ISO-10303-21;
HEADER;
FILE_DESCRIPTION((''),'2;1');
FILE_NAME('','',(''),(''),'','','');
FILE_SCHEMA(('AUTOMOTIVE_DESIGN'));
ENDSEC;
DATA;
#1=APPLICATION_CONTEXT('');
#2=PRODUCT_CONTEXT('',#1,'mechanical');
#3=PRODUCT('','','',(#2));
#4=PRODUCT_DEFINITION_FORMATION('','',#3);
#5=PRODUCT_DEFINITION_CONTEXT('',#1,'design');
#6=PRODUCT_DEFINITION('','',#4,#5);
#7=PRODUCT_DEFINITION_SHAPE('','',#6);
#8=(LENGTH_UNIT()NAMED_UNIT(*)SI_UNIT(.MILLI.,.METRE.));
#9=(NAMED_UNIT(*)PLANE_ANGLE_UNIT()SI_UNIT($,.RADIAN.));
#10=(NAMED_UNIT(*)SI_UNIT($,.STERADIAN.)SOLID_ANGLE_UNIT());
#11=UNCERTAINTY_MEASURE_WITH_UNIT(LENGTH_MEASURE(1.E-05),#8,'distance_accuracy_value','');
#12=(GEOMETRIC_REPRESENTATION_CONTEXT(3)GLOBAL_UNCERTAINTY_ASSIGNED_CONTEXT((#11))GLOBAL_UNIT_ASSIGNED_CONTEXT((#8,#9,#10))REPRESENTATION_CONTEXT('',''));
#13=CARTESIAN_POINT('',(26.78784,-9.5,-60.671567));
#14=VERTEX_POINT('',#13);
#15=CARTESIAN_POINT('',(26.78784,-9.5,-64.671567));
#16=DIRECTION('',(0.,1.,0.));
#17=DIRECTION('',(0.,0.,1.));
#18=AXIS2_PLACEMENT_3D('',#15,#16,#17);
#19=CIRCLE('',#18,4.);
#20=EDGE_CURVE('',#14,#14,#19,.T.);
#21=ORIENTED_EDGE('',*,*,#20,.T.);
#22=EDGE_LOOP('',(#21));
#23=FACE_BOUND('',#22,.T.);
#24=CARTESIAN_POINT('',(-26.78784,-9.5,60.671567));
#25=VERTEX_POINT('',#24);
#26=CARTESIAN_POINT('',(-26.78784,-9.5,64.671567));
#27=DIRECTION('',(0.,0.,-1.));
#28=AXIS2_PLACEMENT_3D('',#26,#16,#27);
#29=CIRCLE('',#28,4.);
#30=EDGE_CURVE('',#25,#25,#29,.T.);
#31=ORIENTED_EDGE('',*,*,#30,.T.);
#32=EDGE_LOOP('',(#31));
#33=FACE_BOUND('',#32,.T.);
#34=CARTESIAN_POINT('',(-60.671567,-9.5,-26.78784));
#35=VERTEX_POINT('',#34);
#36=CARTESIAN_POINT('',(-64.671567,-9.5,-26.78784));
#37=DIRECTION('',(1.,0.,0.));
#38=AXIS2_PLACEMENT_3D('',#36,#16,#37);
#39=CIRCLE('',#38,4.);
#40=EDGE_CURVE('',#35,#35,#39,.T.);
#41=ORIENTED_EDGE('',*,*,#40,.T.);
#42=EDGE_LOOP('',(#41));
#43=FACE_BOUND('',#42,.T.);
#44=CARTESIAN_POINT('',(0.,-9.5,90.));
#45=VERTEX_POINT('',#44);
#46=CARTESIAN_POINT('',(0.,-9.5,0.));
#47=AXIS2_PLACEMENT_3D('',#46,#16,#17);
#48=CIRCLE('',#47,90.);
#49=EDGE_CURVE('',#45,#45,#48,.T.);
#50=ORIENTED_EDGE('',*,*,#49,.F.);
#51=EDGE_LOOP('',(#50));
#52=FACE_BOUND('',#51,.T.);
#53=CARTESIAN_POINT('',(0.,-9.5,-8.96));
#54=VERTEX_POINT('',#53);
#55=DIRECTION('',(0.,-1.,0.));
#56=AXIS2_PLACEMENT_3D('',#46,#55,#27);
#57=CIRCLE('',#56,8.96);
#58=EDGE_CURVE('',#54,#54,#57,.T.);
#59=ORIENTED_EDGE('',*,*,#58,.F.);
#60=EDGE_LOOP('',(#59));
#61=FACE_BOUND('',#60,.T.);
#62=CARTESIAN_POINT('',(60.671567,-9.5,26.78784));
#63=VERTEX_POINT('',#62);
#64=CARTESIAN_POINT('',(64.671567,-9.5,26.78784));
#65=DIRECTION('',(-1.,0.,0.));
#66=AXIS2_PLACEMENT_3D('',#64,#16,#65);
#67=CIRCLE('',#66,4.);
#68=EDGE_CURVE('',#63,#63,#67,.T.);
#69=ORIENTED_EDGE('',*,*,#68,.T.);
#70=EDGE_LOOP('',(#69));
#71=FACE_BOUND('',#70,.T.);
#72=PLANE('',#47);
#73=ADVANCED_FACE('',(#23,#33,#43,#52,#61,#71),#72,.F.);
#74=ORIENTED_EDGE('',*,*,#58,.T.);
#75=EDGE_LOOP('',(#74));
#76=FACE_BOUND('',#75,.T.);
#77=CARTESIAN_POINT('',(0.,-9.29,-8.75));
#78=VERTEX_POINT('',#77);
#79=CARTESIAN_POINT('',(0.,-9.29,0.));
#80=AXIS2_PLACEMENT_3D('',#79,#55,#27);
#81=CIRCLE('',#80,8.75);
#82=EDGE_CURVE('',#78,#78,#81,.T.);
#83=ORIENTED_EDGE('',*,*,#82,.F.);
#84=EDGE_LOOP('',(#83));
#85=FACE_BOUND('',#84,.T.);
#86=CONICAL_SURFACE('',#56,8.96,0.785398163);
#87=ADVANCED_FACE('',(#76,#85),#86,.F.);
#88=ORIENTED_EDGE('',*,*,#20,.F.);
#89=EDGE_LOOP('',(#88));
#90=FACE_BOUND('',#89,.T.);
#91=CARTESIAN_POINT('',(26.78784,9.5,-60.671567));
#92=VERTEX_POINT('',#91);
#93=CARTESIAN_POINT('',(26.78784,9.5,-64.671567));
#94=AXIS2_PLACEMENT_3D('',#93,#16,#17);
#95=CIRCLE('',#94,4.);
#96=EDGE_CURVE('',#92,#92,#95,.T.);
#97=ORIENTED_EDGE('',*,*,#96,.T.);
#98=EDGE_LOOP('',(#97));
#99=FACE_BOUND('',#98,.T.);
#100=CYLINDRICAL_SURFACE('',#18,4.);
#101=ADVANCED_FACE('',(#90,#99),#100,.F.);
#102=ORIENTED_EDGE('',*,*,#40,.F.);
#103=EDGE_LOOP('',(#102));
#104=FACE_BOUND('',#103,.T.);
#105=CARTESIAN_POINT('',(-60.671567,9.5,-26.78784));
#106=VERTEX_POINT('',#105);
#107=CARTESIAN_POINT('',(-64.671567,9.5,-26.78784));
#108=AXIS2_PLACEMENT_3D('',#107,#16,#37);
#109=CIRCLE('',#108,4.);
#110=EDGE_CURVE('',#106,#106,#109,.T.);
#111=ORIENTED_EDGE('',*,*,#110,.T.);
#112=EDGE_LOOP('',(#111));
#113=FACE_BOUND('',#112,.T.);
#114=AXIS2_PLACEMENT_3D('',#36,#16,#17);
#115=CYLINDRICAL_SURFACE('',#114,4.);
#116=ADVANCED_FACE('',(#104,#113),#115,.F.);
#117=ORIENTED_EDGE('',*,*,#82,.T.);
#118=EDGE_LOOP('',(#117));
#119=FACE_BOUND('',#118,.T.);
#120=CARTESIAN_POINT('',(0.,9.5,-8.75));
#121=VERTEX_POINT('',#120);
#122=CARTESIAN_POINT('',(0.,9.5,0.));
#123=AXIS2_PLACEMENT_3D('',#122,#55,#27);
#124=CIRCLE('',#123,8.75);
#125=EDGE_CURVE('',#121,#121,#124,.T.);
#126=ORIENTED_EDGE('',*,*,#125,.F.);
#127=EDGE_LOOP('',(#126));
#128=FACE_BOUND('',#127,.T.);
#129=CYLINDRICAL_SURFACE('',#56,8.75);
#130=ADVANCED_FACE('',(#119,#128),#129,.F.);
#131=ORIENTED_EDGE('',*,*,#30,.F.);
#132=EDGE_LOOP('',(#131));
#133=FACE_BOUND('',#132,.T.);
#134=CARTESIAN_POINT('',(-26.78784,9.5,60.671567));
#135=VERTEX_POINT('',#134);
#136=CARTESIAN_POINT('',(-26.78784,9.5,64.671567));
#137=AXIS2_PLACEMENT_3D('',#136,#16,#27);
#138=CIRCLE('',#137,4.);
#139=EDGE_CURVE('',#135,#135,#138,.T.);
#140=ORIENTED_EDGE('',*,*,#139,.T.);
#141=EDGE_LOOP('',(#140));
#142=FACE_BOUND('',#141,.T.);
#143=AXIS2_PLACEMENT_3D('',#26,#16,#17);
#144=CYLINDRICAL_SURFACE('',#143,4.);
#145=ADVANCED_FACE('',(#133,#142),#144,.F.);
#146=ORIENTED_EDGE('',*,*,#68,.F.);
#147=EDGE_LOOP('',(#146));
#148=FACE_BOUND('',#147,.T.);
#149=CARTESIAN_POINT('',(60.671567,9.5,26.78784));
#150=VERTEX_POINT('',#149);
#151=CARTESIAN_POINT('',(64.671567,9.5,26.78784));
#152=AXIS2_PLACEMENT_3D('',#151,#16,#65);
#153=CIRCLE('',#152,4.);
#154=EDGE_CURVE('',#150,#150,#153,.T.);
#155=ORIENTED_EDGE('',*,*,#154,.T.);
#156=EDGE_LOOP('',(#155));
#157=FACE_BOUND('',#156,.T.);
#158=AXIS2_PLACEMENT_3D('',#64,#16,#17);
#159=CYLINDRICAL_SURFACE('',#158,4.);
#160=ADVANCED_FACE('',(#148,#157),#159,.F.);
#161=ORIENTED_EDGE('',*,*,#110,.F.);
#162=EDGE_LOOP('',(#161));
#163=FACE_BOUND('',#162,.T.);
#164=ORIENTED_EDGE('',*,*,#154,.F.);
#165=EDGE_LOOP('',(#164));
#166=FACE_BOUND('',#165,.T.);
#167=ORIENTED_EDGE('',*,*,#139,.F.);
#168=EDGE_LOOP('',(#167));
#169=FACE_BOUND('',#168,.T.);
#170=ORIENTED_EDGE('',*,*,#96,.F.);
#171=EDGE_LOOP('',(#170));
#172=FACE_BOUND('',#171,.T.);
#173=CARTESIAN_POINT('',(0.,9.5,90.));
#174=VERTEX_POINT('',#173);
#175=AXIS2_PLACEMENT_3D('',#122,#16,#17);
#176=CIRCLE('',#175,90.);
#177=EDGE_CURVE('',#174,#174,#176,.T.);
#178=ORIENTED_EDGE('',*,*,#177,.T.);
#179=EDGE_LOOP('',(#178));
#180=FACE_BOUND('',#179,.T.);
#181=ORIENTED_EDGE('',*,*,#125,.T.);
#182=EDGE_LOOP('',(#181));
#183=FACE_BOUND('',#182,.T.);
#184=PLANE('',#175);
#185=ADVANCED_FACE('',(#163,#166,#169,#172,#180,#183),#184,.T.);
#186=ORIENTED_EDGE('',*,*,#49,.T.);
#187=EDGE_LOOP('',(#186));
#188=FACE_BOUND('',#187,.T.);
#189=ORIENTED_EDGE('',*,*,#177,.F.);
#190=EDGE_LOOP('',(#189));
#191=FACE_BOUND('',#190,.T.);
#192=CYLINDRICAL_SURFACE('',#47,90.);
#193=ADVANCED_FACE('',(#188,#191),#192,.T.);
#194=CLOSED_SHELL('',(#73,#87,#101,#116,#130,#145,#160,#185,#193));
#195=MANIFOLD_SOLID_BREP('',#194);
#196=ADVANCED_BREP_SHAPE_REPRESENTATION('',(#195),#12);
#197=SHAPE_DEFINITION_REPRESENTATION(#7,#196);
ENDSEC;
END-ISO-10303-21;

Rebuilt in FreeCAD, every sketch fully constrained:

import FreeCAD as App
import Part
import Sketcher

doc = App.newDocument("Part")
body = doc.addObject("PartDesign::Body", "Body")

# Sketch on XZ plane
sketch1 = doc.addObject("Sketcher::SketchObject", "Sketch")
body.addObject(sketch1)
sketch1.AttachmentSupport = (doc.XZ_Plane, [""])
sketch1.MapMode = "FlatFace"
sketch1.addGeometry(Part.Circle(App.Vector(0, 0, 0), App.Vector(0, 0, 1), 90), False)
sketch1.addConstraint(Sketcher.Constraint("Coincident", 0, 3, -1, 1))
sketch1.addConstraint(Sketcher.Constraint("Diameter", 0, 180.0))
pad1 = doc.addObject("PartDesign::Pad", "Pad")
body.addObject(pad1)
pad1.Profile = sketch1
pad1.Type = "TwoLengths"
pad1.Length = 9.5
pad1.Length2 = 9.5
pad1.Reversed = True

# Sketch on XZ plane
sketch2 = doc.addObject("Sketcher::SketchObject", "Sketch001")
body.addObject(sketch2)
sketch2.AttachmentSupport = (doc.XZ_Plane, [""])
sketch2.MapMode = "FlatFace"
sketch2.AttachmentOffset = App.Placement(App.Vector(0, 0, 9.5), App.Rotation())
sketch2.addGeometry(Part.Circle(App.Vector(0, 0, 0), App.Vector(0, 0, 1), 8.75), False)
sketch2.addConstraint(Sketcher.Constraint("Coincident", 0, 3, -1, 1))
sketch2.addConstraint(Sketcher.Constraint("Diameter", 0, 17.5))
doc.recompute()
hole = doc.addObject("PartDesign::Hole", "Hole")
body.addObject(hole)
hole.Profile = sketch2
hole.ThreadType = "None"
hole.Diameter = 17.5
hole.DepthType = "ThroughAll"
hole.HoleCutType = "Countersink"
hole.HoleCutDiameter = 17.92
hole.HoleCutCountersinkAngle = 90

# Sketch on XZ plane
sketch3 = doc.addObject("Sketcher::SketchObject", "Sketch002")
body.addObject(sketch3)
sketch3.AttachmentSupport = (doc.XZ_Plane, [""])
sketch3.MapMode = "FlatFace"
sketch3.addGeometry(Part.Circle(App.Vector(26.78784, -64.671567, 0), App.Vector(0, 0, 1), 4), False)
sketch3.addConstraint(Sketcher.Constraint("Diameter", 0, 8.0))
sketch3.addConstraint(Sketcher.Constraint("DistanceX", -1, 1, 0, 3, 26.78784))
sketch3.addConstraint(Sketcher.Constraint("DistanceY", 0, 3, -1, 1, 64.671567))
pocket1 = doc.addObject("PartDesign::Pocket", "Pocket")
body.addObject(pocket1)
pocket1.Profile = sketch3
pocket1.Length = 257.266527
pocket1.Midplane = True
doc.recompute()

polarpattern = doc.addObject("PartDesign::PolarPattern", "PolarPattern")
body.addObject(polarpattern)
polarpattern.Originals = [pocket1]
polarpattern.Axis = (doc.Y_Axis, [""])
polarpattern.Angle = 360
polarpattern.Occurrences = 4
body.Tip = polarpattern

doc.recompute()
